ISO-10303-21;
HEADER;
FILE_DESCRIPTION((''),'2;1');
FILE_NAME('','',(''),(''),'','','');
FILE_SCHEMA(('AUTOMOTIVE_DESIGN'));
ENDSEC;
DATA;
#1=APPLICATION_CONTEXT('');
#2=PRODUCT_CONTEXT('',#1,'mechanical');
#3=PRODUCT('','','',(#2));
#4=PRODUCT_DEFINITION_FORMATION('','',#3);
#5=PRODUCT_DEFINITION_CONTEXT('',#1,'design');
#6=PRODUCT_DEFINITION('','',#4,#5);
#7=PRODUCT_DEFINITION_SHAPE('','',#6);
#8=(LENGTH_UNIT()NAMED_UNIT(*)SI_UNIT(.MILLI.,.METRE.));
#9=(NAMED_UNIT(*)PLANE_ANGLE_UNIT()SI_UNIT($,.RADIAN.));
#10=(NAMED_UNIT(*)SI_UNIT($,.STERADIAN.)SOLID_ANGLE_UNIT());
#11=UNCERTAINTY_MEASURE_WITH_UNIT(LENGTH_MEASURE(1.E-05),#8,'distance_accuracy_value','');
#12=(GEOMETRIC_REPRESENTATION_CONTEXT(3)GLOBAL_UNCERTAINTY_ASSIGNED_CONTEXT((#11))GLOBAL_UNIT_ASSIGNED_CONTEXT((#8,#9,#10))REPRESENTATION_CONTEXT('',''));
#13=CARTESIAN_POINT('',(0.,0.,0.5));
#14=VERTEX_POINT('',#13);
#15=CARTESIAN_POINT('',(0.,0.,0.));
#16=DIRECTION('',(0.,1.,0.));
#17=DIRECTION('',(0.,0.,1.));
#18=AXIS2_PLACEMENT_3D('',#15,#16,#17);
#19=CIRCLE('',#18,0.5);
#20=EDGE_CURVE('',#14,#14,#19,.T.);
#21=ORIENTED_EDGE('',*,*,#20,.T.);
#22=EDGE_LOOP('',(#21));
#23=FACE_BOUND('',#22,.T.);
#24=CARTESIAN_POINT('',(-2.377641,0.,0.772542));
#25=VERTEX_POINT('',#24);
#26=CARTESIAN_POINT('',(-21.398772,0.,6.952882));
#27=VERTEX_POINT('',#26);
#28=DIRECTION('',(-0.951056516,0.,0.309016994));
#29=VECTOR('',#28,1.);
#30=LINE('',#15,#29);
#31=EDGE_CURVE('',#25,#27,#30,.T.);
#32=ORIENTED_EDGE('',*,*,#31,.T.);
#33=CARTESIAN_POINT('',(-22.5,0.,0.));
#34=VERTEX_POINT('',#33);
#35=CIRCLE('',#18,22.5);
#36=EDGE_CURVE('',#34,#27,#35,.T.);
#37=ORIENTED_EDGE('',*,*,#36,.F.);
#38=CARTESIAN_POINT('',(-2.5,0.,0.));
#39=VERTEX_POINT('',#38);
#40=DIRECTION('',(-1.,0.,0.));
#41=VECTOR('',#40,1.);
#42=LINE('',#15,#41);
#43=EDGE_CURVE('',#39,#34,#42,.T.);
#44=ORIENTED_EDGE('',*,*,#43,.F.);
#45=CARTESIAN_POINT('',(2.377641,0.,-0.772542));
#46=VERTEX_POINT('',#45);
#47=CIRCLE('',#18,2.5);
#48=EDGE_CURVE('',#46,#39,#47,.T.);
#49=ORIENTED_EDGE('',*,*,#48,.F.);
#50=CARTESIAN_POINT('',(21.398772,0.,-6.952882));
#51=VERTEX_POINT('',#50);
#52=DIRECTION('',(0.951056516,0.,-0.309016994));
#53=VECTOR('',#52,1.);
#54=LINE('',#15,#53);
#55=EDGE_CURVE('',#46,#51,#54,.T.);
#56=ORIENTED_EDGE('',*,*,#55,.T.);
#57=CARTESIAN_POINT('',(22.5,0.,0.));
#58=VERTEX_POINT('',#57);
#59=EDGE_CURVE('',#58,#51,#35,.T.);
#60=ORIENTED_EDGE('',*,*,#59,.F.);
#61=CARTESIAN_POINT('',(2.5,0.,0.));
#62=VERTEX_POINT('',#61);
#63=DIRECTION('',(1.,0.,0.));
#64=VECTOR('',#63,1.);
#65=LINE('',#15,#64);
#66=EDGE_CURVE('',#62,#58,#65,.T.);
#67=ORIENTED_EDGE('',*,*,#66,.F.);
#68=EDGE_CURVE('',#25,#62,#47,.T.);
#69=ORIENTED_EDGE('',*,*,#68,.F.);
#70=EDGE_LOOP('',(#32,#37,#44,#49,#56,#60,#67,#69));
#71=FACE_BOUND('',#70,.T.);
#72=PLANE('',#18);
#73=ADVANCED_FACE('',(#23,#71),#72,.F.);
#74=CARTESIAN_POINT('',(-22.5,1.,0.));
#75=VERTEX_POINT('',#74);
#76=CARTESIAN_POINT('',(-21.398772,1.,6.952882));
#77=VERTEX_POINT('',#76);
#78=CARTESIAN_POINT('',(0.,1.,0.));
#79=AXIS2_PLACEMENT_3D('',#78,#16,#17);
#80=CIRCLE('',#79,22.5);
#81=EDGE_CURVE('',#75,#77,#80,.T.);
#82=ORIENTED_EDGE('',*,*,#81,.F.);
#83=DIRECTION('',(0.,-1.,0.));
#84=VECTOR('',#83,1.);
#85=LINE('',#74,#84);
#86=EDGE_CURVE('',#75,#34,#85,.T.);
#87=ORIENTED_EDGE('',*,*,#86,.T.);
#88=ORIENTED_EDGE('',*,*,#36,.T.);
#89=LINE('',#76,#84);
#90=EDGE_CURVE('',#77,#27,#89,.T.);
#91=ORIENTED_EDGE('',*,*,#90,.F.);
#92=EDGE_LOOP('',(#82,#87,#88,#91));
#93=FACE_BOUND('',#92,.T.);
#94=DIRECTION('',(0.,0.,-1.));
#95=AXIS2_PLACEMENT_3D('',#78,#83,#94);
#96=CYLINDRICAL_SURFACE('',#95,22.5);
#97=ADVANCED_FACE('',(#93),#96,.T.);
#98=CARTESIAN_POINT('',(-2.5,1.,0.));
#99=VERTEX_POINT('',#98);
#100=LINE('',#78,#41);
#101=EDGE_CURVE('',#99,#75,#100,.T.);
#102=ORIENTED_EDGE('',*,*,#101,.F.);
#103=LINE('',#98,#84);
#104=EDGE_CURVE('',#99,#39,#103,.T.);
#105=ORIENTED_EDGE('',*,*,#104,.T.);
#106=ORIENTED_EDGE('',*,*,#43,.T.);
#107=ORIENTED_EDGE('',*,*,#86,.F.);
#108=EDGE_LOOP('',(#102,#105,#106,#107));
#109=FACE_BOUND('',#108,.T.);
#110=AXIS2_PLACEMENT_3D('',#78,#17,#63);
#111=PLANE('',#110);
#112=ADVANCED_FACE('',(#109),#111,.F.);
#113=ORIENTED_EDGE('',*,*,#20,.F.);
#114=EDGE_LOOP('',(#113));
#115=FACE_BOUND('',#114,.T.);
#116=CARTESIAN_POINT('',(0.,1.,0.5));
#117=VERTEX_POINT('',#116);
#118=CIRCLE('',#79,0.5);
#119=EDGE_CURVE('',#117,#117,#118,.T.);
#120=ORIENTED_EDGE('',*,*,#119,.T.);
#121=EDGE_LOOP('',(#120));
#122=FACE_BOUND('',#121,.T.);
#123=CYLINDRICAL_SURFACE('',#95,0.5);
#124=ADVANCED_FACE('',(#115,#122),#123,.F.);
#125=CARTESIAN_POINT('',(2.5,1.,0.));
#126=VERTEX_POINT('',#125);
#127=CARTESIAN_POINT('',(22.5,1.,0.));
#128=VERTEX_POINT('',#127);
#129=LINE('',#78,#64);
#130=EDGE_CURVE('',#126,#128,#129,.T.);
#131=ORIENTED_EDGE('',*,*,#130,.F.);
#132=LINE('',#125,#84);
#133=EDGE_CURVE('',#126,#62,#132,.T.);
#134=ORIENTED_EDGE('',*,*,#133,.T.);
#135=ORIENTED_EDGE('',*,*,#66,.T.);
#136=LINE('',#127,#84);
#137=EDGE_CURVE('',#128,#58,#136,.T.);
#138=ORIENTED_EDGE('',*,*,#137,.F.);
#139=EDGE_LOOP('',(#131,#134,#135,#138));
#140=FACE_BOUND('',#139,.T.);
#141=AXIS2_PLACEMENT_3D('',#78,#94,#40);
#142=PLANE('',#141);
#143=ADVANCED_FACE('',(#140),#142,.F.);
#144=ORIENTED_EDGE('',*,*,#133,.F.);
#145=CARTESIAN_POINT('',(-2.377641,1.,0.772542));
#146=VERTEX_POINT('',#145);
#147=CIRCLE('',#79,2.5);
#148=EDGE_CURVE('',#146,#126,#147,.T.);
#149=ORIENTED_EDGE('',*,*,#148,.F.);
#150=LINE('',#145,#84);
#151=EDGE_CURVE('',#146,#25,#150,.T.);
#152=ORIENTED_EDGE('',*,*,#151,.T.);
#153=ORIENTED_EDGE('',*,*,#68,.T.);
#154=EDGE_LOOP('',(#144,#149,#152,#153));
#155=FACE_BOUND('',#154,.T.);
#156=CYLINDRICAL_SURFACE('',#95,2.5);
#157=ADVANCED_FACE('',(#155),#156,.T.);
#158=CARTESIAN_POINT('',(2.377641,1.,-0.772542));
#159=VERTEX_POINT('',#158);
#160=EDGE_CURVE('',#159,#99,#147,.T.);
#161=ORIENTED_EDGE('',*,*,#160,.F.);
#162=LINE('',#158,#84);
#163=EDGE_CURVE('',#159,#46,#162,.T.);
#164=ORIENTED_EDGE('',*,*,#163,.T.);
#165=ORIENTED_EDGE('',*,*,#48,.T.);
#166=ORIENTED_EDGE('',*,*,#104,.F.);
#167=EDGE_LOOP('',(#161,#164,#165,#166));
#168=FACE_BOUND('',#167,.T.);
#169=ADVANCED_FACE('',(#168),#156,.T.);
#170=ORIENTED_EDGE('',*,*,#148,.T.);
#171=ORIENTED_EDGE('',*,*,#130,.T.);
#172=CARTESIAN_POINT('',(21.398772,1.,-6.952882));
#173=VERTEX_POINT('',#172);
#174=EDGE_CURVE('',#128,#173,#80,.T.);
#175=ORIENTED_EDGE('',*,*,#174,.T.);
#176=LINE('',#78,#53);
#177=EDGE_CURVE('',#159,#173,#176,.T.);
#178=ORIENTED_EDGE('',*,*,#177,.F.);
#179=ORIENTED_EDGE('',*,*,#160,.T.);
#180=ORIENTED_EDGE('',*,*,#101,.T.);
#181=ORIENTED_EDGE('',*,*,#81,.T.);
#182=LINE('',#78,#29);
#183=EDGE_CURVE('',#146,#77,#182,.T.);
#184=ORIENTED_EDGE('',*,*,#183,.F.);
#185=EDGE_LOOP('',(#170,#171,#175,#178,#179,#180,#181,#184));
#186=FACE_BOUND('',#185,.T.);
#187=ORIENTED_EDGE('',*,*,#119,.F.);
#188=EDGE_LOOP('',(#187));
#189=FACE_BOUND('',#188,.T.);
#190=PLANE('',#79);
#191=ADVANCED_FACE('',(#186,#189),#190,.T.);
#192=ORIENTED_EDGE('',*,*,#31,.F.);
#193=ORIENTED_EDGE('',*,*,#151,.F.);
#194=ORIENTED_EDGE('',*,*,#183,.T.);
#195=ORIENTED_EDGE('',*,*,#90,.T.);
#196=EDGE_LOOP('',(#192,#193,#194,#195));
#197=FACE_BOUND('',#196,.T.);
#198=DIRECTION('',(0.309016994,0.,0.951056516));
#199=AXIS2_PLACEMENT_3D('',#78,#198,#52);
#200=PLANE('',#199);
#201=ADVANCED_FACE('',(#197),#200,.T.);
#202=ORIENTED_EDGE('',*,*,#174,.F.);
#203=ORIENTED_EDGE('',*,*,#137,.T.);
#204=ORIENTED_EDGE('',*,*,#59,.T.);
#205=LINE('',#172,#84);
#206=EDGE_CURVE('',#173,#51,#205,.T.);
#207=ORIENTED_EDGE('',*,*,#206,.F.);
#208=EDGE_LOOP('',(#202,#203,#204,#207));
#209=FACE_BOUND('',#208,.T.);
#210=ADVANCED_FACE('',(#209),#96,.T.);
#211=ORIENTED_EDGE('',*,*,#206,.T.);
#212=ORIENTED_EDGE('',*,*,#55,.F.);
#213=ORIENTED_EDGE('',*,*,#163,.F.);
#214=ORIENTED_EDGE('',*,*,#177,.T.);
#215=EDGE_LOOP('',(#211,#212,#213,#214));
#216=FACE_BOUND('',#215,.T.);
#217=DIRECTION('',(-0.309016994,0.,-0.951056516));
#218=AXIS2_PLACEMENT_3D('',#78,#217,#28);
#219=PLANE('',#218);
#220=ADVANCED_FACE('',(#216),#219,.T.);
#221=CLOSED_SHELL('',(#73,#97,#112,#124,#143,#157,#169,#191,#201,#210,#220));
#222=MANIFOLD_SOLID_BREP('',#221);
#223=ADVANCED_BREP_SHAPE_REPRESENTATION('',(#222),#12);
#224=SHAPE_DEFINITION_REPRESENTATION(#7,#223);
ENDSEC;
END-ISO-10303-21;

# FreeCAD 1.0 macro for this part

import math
import FreeCAD as App
import Part
import Sketcher
Q = App.Units.Quantity

doc = App.newDocument("Part")
params = doc.addObject("Spreadsheet::Sheet", "Params")
for row, (alias, value) in enumerate([
    ("sketch1_diameter", "1 mm"),
    ("sketch1_radius", "2.5 mm"),
    ("sketch1_radius2", "22.5 mm"),
    ("pad1_length", "1 mm"),
], start=1):
    params.set(f"A{row}", alias)
    params.set(f"B{row}", "=" + value)
    params.setAlias(f"B{row}", alias)

body = doc.addObject("PartDesign::Body", "Body")

# Sketch on XZ plane
sketch1 = body.newObject("Sketcher::SketchObject", "Sketch")
sketch1.AttachmentSupport = (doc.getObject("XZ_Plane"), [""])
sketch1.MapMode = "FlatFace"
sketch1.addGeometry([
    Part.LineSegment(App.Vector(-21.4, 7, 0), App.Vector(-2.4, 0.8, 0)),  # 0
    Part.ArcOfCircle(Part.Circle(App.Vector(0, 0, 0), App.Vector(0, 0, 1), 2.5), math.radians(0), math.radians(162)),  # 1
    Part.LineSegment(App.Vector(2.5, 0, 0), App.Vector(22.5, 0, 0)),  # 2
    Part.ArcOfCircle(Part.Circle(App.Vector(0, 0, 0), App.Vector(0, 0, 1), 22.5), math.radians(-18), math.radians(0)),  # 3
    Part.LineSegment(App.Vector(21.4, -7, 0), App.Vector(2.4, -0.8, 0)),  # 4
    Part.ArcOfCircle(Part.Circle(App.Vector(0, 0, 0), App.Vector(0, 0, 1), 2.5), math.radians(180), math.radians(342)),  # 5
    Part.LineSegment(App.Vector(-2.5, 0, 0), App.Vector(-22.5, 0, 0)),  # 6
    Part.ArcOfCircle(Part.Circle(App.Vector(0, 0, 0), App.Vector(0, 0, 1), 22.5), math.radians(162), math.radians(180)),  # 7
    Part.Circle(App.Vector(0, 0, 0), App.Vector(0, 0, 1), 0.5),  # 8
], False)
sketch1.addConstraint([
    Sketcher.Constraint("Coincident", 0, 2, 1, 2),
    Sketcher.Constraint("Coincident", 1, 1, 2, 1),
    Sketcher.Constraint("Coincident", 2, 2, 3, 2),
    Sketcher.Constraint("Coincident", 3, 1, 4, 1),
    Sketcher.Constraint("Coincident", 4, 2, 5, 2),
    Sketcher.Constraint("Coincident", 5, 1, 6, 1),
    Sketcher.Constraint("Coincident", 6, 2, 7, 2),
    Sketcher.Constraint("Coincident", 7, 1, 0, 1),
    Sketcher.Constraint("Horizontal", 2),
    Sketcher.Constraint("Horizontal", 6),
    Sketcher.Constraint("Coincident", 1, 3, -1, 1),
    Sketcher.Constraint("Coincident", 3, 3, -1, 1),
    Sketcher.Constraint("Coincident", 5, 3, -1, 1),
    Sketcher.Constraint("Coincident", 7, 3, -1, 1),
    Sketcher.Constraint("Coincident", 8, 3, -1, 1),
    Sketcher.Constraint("Equal", 1, 5),
    Sketcher.Constraint("Equal", 3, 7),
    Sketcher.Constraint("PointOnObject", 1, 1, -1),
    Sketcher.Constraint("PointOnObject", 5, 1, -1),
    Sketcher.Constraint("Parallel", 0, 4),
    Sketcher.Constraint("Diameter", 8, 1.0),
    Sketcher.Constraint("Radius", 1, 2.5),
    Sketcher.Constraint("Radius", 3, 22.5),
    Sketcher.Constraint("Angle", 0, Q("-18 deg")),
    Sketcher.Constraint("DistanceX", 0, 2, -1, 1, 2.377641),
    Sketcher.Constraint("DistanceX", -1, 1, 3, 1, 21.398772),
])
sketch1.setExpression("Constraints[20]", "Params.sketch1_diameter")
sketch1.setExpression("Constraints[21]", "Params.sketch1_radius")
sketch1.setExpression("Constraints[22]", "Params.sketch1_radius2")
pad1 = body.newObject("PartDesign::Pad", "Pad")
pad1.Profile = sketch1
pad1.setExpression("Length", "Params.pad1_length")
pad1.Reversed = True

doc.recompute()
